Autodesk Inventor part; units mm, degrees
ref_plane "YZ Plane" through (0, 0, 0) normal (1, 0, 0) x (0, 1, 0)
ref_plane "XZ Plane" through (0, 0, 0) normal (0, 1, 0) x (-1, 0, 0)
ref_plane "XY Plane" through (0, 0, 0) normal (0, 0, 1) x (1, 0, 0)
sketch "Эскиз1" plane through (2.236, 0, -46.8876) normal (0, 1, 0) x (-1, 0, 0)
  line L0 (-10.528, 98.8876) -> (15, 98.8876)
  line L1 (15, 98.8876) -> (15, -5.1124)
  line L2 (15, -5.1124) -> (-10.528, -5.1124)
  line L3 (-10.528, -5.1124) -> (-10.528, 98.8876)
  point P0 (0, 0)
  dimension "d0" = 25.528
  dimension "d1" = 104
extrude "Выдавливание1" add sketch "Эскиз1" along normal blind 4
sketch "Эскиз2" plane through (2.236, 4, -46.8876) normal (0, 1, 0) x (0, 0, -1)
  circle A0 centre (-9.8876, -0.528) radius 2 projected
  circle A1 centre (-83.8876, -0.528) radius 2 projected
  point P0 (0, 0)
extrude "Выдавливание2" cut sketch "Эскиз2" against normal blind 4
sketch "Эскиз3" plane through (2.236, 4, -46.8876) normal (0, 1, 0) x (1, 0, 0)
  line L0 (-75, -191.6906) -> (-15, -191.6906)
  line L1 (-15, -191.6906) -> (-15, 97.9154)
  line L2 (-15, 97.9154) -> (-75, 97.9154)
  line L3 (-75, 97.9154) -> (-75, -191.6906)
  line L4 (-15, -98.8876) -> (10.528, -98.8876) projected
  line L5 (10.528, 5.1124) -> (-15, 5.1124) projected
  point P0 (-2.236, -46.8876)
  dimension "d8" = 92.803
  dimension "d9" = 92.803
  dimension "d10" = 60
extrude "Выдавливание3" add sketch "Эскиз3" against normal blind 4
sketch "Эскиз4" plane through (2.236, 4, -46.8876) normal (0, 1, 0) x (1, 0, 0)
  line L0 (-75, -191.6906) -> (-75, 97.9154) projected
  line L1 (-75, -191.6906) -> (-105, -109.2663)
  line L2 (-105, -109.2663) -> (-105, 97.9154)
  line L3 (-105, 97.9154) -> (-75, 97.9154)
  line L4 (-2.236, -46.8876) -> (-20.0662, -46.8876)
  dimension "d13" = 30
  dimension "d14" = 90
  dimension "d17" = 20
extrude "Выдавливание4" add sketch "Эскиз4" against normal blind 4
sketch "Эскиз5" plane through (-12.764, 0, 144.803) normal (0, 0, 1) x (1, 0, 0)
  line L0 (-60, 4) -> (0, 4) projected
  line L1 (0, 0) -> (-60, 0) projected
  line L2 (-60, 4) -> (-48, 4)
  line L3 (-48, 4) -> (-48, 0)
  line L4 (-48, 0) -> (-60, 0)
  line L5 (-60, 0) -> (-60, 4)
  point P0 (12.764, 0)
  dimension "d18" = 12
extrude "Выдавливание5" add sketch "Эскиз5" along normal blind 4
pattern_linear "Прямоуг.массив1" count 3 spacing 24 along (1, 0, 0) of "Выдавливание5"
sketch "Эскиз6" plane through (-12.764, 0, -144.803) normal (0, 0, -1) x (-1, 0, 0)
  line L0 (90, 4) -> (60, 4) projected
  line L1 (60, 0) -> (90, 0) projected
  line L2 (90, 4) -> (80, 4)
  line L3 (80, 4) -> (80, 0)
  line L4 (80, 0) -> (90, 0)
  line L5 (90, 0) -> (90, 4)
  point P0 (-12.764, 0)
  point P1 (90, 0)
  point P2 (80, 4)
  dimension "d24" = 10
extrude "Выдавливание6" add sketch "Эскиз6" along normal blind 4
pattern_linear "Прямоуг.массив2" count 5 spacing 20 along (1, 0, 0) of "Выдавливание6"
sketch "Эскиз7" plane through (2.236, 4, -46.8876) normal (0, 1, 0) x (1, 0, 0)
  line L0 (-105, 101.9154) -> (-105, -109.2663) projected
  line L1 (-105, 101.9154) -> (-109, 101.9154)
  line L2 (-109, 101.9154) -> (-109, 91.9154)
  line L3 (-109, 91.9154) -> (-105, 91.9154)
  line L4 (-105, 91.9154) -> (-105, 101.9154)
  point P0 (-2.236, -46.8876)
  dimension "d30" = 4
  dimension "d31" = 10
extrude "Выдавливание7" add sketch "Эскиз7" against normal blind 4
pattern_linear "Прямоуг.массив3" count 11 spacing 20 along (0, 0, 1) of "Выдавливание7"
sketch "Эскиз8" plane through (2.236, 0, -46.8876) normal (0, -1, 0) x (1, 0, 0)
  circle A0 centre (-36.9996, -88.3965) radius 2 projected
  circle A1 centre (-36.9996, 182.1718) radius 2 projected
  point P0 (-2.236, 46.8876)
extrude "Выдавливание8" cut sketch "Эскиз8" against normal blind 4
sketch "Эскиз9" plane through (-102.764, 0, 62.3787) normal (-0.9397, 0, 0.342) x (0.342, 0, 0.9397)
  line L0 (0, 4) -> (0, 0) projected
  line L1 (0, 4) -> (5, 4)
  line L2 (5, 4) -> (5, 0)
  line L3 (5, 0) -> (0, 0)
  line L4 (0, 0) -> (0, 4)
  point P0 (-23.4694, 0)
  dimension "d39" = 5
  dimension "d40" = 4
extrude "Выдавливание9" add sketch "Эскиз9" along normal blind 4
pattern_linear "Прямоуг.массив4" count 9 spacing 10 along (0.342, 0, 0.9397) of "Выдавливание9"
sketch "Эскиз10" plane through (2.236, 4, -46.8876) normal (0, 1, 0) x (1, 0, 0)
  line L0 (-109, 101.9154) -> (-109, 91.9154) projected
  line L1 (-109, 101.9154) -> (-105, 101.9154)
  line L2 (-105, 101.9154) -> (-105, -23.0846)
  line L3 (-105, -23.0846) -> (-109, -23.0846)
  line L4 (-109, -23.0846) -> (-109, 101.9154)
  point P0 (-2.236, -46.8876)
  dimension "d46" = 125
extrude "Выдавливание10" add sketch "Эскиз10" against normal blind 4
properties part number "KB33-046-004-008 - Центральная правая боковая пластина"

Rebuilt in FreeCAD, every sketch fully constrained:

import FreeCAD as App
import Part
import Sketcher
from FreeCAD import Vector
Q = App.Units.Quantity

doc = App.newDocument("Part")
params = doc.addObject("Spreadsheet::Sheet", "Params")
for row, (alias, value) in enumerate([
    ("sketch1_height", "104 mm"),
    ("pad1_length", "4 mm"),
    ("sketch2_diameter", "4 mm"),
    ("pocket1_length", "4 mm"),
    ("sketch3_width", "60 mm"),
    ("pad2_length", "4 mm"),
    ("sketch4_width", "30 mm"),
    ("pad3_length", "4 mm"),
    ("sketch5_width", "12 mm"),
    ("sketch5_height", "4 mm"),
    ("pad4_length", "4 mm"),
    ("linearpattern_pitch", "24 mm"),
    ("sketch6_width", "10 mm"),
    ("sketch6_height", "4 mm"),
    ("pad5_length", "4 mm"),
    ("linearpattern2_pitch", "20 mm"),
    ("sketch7_width", "4 mm"),
    ("sketch7_height", "10 mm"),
    ("pad6_length", "4 mm"),
    ("linearpattern3_pitch", "20 mm"),
    ("sketch8_diameter", "4 mm"),
    ("pocket2_length", "4 mm"),
    ("sketch9_width", "5 mm"),
    ("sketch9_height", "4 mm"),
    ("pad7_length", "4 mm"),
    ("linearpattern4_pitch", "10 mm"),
    ("sketch10_height", "125 mm"),
    ("sketch10_width", "4 mm"),
    ("pad8_length", "4 mm"),
], start=1):
    params.set(f"A{row}", alias)
    params.set(f"B{row}", "=" + value)
    params.setAlias(f"B{row}", alias)

body = doc.addObject("PartDesign::Body", "Body")

# Sketch on XZ plane
sketch1 = doc.addObject("Sketcher::SketchObject", "Sketch")
body.addObject(sketch1)
sketch1.AttachmentSupport = (doc.XZ_Plane, [""])
sketch1.MapMode = "FlatFace"
sketch1.addGeometry(Part.LineSegment(Vector(-12.764, 52, 0), Vector(12.764, 52, 0)), False)
sketch1.addGeometry(Part.LineSegment(Vector(12.764, 52, 0), Vector(12.764, -52, 0)), False)
sketch1.addGeometry(Part.LineSegment(Vector(12.764, -52, 0), Vector(-12.764, -52, 0)), False)
sketch1.addGeometry(Part.LineSegment(Vector(-12.764, -52, 0), Vector(-12.764, 52, 0)), False)
sketch1.addConstraint(Sketcher.Constraint("Coincident", 0, 2, 1, 1))
sketch1.addConstraint(Sketcher.Constraint("Coincident", 1, 2, 2, 1))
sketch1.addConstraint(Sketcher.Constraint("Coincident", 2, 2, 3, 1))
sketch1.addConstraint(Sketcher.Constraint("Coincident", 3, 2, 0, 1))
sketch1.addConstraint(Sketcher.Constraint("Horizontal", 0))
sketch1.addConstraint(Sketcher.Constraint("Vertical", 1))
sketch1.addConstraint(Sketcher.Constraint("Horizontal", 2))
sketch1.addConstraint(Sketcher.Constraint("Vertical", 3))
sketch1.addConstraint(Sketcher.Constraint("Symmetric", 0, 2, 2, 2, -1, 1))
sketch1.addConstraint(Sketcher.Constraint("DistanceY", 1, 2, 1, 1, Q("104 mm")))
sketch1.addConstraint(Sketcher.Constraint("DistanceX", 0, 1, 0, 2, Q("25.528 mm")))
sketch1.setExpression("Constraints[9]", "Params.sketch1_height")
pad1 = doc.addObject("PartDesign::Pad", "Pad")
body.addObject(pad1)
pad1.Profile = sketch1
pad1.setExpression("Length", "Params.pad1_length")
pad1.Reversed = True

# Sketch on XZ plane
sketch2 = doc.addObject("Sketcher::SketchObject", "Sketch001")
body.addObject(sketch2)
sketch2.AttachmentSupport = (doc.XZ_Plane, [""])
sketch2.MapMode = "FlatFace"
sketch2.AttachmentOffset = App.Placement(Vector(0, 0, -4), App.Rotation())
sketch2.addGeometry(Part.Circle(Vector(2.764, -37, 0), Vector(0, 0, 1), 2), False)
sketch2.addGeometry(Part.Circle(Vector(2.764, 37, 0), Vector(0, 0, 1), 2), False)
sketch2.addConstraint(Sketcher.Constraint("Equal", 0, 1))
sketch2.addConstraint(Sketcher.Constraint("Symmetric", 0, 3, 1, 3, -1))
sketch2.addConstraint(Sketcher.Constraint("Diameter", 0, Q("4 mm")))
sketch2.addConstraint(Sketcher.Constraint("DistanceY", 0, 3, -1, 1, Q("37 mm")))
sketch2.addConstraint(Sketcher.Constraint("DistanceX", -1, 1, 0, 3, Q("2.764 mm")))
sketch2.setExpression("Constraints[2]", "Params.sketch2_diameter")
pocket1 = doc.addObject("PartDesign::Pocket", "Pocket")
body.addObject(pocket1)
pocket1.Profile = sketch2
pocket1.setExpression("Length", "Params.pocket1_length")
pocket1.Reversed = True

# Sketch on XZ plane
sketch3 = doc.addObject("Sketcher::SketchObject", "Sketch002")
body.addObject(sketch3)
sketch3.AttachmentSupport = (doc.XZ_Plane, [""])
sketch3.MapMode = "FlatFace"
sketch3.AttachmentOffset = App.Placement(Vector(0, 0, -4), App.Rotation())
sketch3.addGeometry(Part.LineSegment(Vector(-72.764, -144.803, 0), Vector(-72.764, 144.803, 0)), False)
sketch3.addGeometry(Part.LineSegment(Vector(-72.764, 144.803, 0), Vector(-12.764, 144.803, 0)), False)
sketch3.addGeometry(Part.LineSegment(Vector(-12.764, 144.803, 0), Vector(-12.764, -144.803, 0)), False)
sketch3.addGeometry(Part.LineSegment(Vector(-12.764, -144.803, 0), Vector(-72.764, -144.803, 0)), False)
sketch3.addConstraint(Sketcher.Constraint("Coincident", 0, 2, 1, 1))
sketch3.addConstraint(Sketcher.Constraint("Coincident", 1, 2, 2, 1))
sketch3.addConstraint(Sketcher.Constraint("Coincident", 2, 2, 3, 1))
sketch3.addConstraint(Sketcher.Constraint("Coincident", 3, 2, 0, 1))
sketch3.addConstraint(Sketcher.Constraint("Vertical", 0))
sketch3.addConstraint(Sketcher.Constraint("Horizontal", 1))
sketch3.addConstraint(Sketcher.Constraint("Vertical", 2))
sketch3.addConstraint(Sketcher.Constraint("Horizontal", 3))
sketch3.addConstraint(Sketcher.Constraint("DistanceX", 1, 1, 1, 2, Q("60 mm")))
sketch3.addConstraint(Sketcher.Constraint("DistanceY", 0, 1, 0, 2, Q("289.606 mm")))
sketch3.addConstraint(Sketcher.Constraint("DistanceX", 0, 2, -1, 1, Q("72.764 mm")))
sketch3.addConstraint(Sketcher.Constraint("DistanceY", -1, 1, 0, 2, Q("144.803 mm")))
sketch3.setExpression("Constraints[8]", "Params.sketch3_width")
pad2 = doc.addObject("PartDesign::Pad", "Pad001")
body.addObject(pad2)
pad2.Profile = sketch3
pad2.setExpression("Length", "Params.pad2_length")

# Sketch on XZ plane
sketch4 = doc.addObject("Sketcher::SketchObject", "Sketch003")
body.addObject(sketch4)
sketch4.AttachmentSupport = (doc.XZ_Plane, [""])
sketch4.MapMode = "FlatFace"
sketch4.AttachmentOffset = App.Placement(Vector(0, 0, -4), App.Rotation())
sketch4.addGeometry(Part.LineSegment(Vector(-102.764, 62.3787, 0), Vector(-72.764, 144.803, 0)), False)
sketch4.addGeometry(Part.LineSegment(Vector(-72.764, 144.803, 0), Vector(-72.764, -144.803, 0)), False)
sketch4.addGeometry(Part.LineSegment(Vector(-72.764, -144.803, 0), Vector(-102.764, -144.803, 0)), False)
sketch4.addGeometry(Part.LineSegment(Vector(-102.764, -144.803, 0), Vector(-102.764, 62.3787, 0)), False)
sketch4.addConstraint(Sketcher.Constraint("Coincident", 0, 2, 1, 1))
sketch4.addConstraint(Sketcher.Constraint("Coincident", 1, 2, 2, 1))
sketch4.addConstraint(Sketcher.Constraint("Coincident", 2, 2, 3, 1))
sketch4.addConstraint(Sketcher.Constraint("Coincident", 3, 2, 0, 1))
sketch4.addConstraint(Sketcher.Constraint("Vertical", 1))
sketch4.addConstraint(Sketcher.Constraint("Horizontal", 2))
sketch4.addConstraint(Sketcher.Constraint("Vertical", 3))
sketch4.addConstraint(Sketcher.Constraint("DistanceX", 2, 2, 2, 1, Q("30 mm")))
sketch4.addConstraint(Sketcher.Constraint("Angle", 0, Q("70 deg")))
sketch4.addConstraint(Sketcher.Constraint("DistanceY", 1, 2, 1, 1, Q("289.606 mm")))
sketch4.addConstraint(Sketcher.Constraint("DistanceX", 0, 2, -1, 1, Q("72.764 mm")))
sketch4.addConstraint(Sketcher.Constraint("DistanceY", -1, 1, 0, 2, Q("144.803 mm")))
sketch4.setExpression("Constraints[7]", "Params.sketch4_width")
pad3 = doc.addObject("PartDesign::Pad", "Pad002")
body.addObject(pad3)
pad3.Profile = sketch4
pad3.setExpression("Length", "Params.pad3_length")

# Sketch on XY plane
sketch5 = doc.addObject("Sketcher::SketchObject", "Sketch004")
body.addObject(sketch5)
sketch5.AttachmentSupport = (doc.XY_Plane, [""])
sketch5.MapMode = "FlatFace"
sketch5.AttachmentOffset = App.Placement(Vector(0, 0, 144.803), App.Rotation())
sketch5.addGeometry(Part.LineSegment(Vector(-60.764, 4, 0), Vector(-72.764, 4, 0)), False)
sketch5.addGeometry(Part.LineSegment(Vector(-72.764, 4, 0), Vector(-72.764, 0, 0)), False)
sketch5.addGeometry(Part.LineSegment(Vector(-72.764, 0, 0), Vector(-60.764, 0, 0)), False)
sketch5.addGeometry(Part.LineSegment(Vector(-60.764, 0, 0), Vector(-60.764, 4, 0)), False)
sketch5.addConstraint(Sketcher.Constraint("Coincident", 0, 2, 1, 1))
sketch5.addConstraint(Sketcher.Constraint("Coincident", 1, 2, 2, 1))
sketch5.addConstraint(Sketcher.Constraint("Coincident", 2, 2, 3, 1))
sketch5.addConstraint(Sketcher.Constraint("Coincident", 3, 2, 0, 1))
sketch5.addConstraint(Sketcher.Constraint("Horizontal", 0))
sketch5.addConstraint(Sketcher.Constraint("Vertical", 1))
sketch5.addConstraint(Sketcher.Constraint("Horizontal", 2))
sketch5.addConstraint(Sketcher.Constraint("Vertical", 3))
sketch5.addConstraint(Sketcher.Constraint("PointOnObject", 1, 2, -1))
sketch5.addConstraint(Sketcher.Constraint("DistanceX", 0, 2, 0, 1, Q("12 mm")))
sketch5.addConstraint(Sketcher.Constraint("DistanceY", 1, 2, 1, 1, Q("4 mm")))
sketch5.addConstraint(Sketcher.Constraint("DistanceX", 0, 2, -1, 1, Q("72.764 mm")))
sketch5.setExpression("Constraints[9]", "Params.sketch5_width")
sketch5.setExpression("Constraints[10]", "Params.sketch5_height")
pad4 = doc.addObject("PartDesign::Pad", "Pad003")
body.addObject(pad4)
pad4.Profile = sketch5
pad4.setExpression("Length", "Params.pad4_length")
doc.recompute()

linearpattern = doc.addObject("PartDesign::LinearPattern", "LinearPattern")
body.addObject(linearpattern)
linearpattern.Originals = [pad4]
linearpattern.Direction = (doc.X_Axis, [""])
linearpattern.Mode = "offset"
linearpattern.setExpression("Offset", "Params.linearpattern_pitch")
linearpattern.Occurrences = 3
body.Tip = linearpattern

# Sketch on XY plane
sketch6 = doc.addObject("Sketcher::SketchObject", "Sketch005")
body.addObject(sketch6)
sketch6.AttachmentSupport = (doc.XY_Plane, [""])
sketch6.MapMode = "FlatFace"
sketch6.AttachmentOffset = App.Placement(Vector(0, 0, -144.803), App.Rotation())
sketch6.addGeometry(Part.LineSegment(Vector(-102.764, 0, 0), Vector(-102.764, 4, 0)), False)
sketch6.addGeometry(Part.LineSegment(Vector(-102.764, 4, 0), Vector(-92.764, 4, 0)), False)
sketch6.addGeometry(Part.LineSegment(Vector(-92.764, 4, 0), Vector(-92.764, 0, 0)), False)
sketch6.addGeometry(Part.LineSegment(Vector(-92.764, 0, 0), Vector(-102.764, 0, 0)), False)
sketch6.addConstraint(Sketcher.Constraint("Coincident", 0, 2, 1, 1))
sketch6.addConstraint(Sketcher.Constraint("Coincident", 1, 2, 2, 1))
sketch6.addConstraint(Sketcher.Constraint("Coincident", 2, 2, 3, 1))
sketch6.addConstraint(Sketcher.Constraint("Coincident", 3, 2, 0, 1))
sketch6.addConstraint(Sketcher.Constraint("Vertical", 0))
sketch6.addConstraint(Sketcher.Constraint("Horizontal", 1))
sketch6.addConstraint(Sketcher.Constraint("Vertical", 2))
sketch6.addConstraint(Sketcher.Constraint("Horizontal", 3))
sketch6.addConstraint(Sketcher.Constraint("PointOnObject", 2, 2, -1))
sketch6.addConstraint(Sketcher.Constraint("DistanceX", 1, 1, 1, 2, Q("10 mm")))
sketch6.addConstraint(Sketcher.Constraint("DistanceY", 0, 1, 0, 2, Q("4 mm")))
sketch6.addConstraint(Sketcher.Constraint("DistanceX", 0, 2, -1, 1, Q("102.764 mm")))
sketch6.setExpression("Constraints[9]", "Params.sketch6_width")
sketch6.setExpression("Constraints[10]", "Params.sketch6_height")
pad5 = doc.addObject("PartDesign::Pad", "Pad004")
body.addObject(pad5)
pad5.Profile = sketch6
pad5.setExpression("Length", "Params.pad5_length")
pad5.Reversed = True
doc.recompute()

linearpattern2 = doc.addObject("PartDesign::LinearPattern", "LinearPattern001")
body.addObject(linearpattern2)
linearpattern2.Originals = [pad5]
linearpattern2.Direction = (doc.X_Axis, [""])
linearpattern2.Mode = "offset"
linearpattern2.setExpression("Offset", "Params.linearpattern2_pitch")
linearpattern2.Occurrences = 5
body.Tip = linearpattern2

# Sketch on XZ plane
sketch7 = doc.addObject("Sketcher::SketchObject", "Sketch006")
body.addObject(sketch7)
sketch7.AttachmentSupport = (doc.XZ_Plane, [""])
sketch7.MapMode = "FlatFace"
sketch7.AttachmentOffset = App.Placement(Vector(0, 0, -4), App.Rotation())
sketch7.addGeometry(Part.LineSegment(Vector(-102.764, -138.803, 0), Vector(-102.764, -148.803, 0)), False)
sketch7.addGeometry(Part.LineSegment(Vector(-102.764, -148.803, 0), Vector(-106.764, -148.803, 0)), False)
sketch7.addGeometry(Part.LineSegment(Vector(-106.764, -148.803, 0), Vector(-106.764, -138.803, 0)), False)
sketch7.addGeometry(Part.LineSegment(Vector(-106.764, -138.803, 0), Vector(-102.764, -138.803, 0)), False)
sketch7.addConstraint(Sketcher.Constraint("Coincident", 0, 2, 1, 1))
sketch7.addConstraint(Sketcher.Constraint("Coincident", 1, 2, 2, 1))
sketch7.addConstraint(Sketcher.Constraint("Coincident", 2, 2, 3, 1))
sketch7.addConstraint(Sketcher.Constraint("Coincident", 3, 2, 0, 1))
sketch7.addConstraint(Sketcher.Constraint("Vertical", 0))
sketch7.addConstraint(Sketcher.Constraint("Horizontal", 1))
sketch7.addConstraint(Sketcher.Constraint("Vertical", 2))
sketch7.addConstraint(Sketcher.Constraint("Horizontal", 3))
sketch7.addConstraint(Sketcher.Constraint("DistanceX", 1, 2, 1, 1, Q("4 mm")))
sketch7.addConstraint(Sketcher.Constraint("DistanceY", 0, 2, 0, 1, Q("10 mm")))
sketch7.addConstraint(Sketcher.Constraint("DistanceX", 0, 2, -1, 1, Q("102.764 mm")))
sketch7.addConstraint(Sketcher.Constraint("DistanceY", 0, 2, -1, 1, Q("148.803 mm")))
sketch7.setExpression("Constraints[8]", "Params.sketch7_width")
sketch7.setExpression("Constraints[9]", "Params.sketch7_height")
pad6 = doc.addObject("PartDesign::Pad", "Pad005")
body.addObject(pad6)
pad6.Profile = sketch7
pad6.setExpression("Length", "Params.pad6_length")
doc.recompute()

linearpattern3 = doc.addObject("PartDesign::LinearPattern", "LinearPattern002")
body.addObject(linearpattern3)
linearpattern3.Originals = [pad6]
linearpattern3.Direction = (doc.Z_Axis, [""])
linearpattern3.Mode = "offset"
linearpattern3.setExpression("Offset", "Params.linearpattern3_pitch")
linearpattern3.Occurrences = 11
body.Tip = linearpattern3

# Sketch on XZ plane
sketch8 = doc.addObject("Sketcher::SketchObject", "Sketch007")
body.addObject(sketch8)
sketch8.AttachmentSupport = (doc.XZ_Plane, [""])
sketch8.MapMode = "FlatFace"
sketch8.addGeometry(Part.Circle(Vector(-34.7636, -135.2841, 0), Vector(0, 0, 1), 2), False)
sketch8.addGeometry(Part.Circle(Vector(-34.7636, 135.2842, 0), Vector(0, 0, 1), 2), False)
sketch8.addConstraint(Sketcher.Constraint("Equal", 0, 1))
sketch8.addConstraint(Sketcher.Constraint("Symmetric", 0, 3, 1, 3, -1))
sketch8.addConstraint(Sketcher.Constraint("Diameter", 0, Q("4 mm")))
sketch8.addConstraint(Sketcher.Constraint("DistanceY", 0, 3, -1, 1, Q("135.284 mm")))
sketch8.addConstraint(Sketcher.Constraint("DistanceX", 0, 3, -1, 1, Q("34.7636 mm")))
sketch8.setExpression("Constraints[2]", "Params.sketch8_diameter")
pocket2 = doc.addObject("PartDesign::Pocket", "Pocket001")
body.addObject(pocket2)
pocket2.Profile = sketch8
pocket2.setExpression("Length", "Params.pocket2_length")

# Sketch on an angled plane
sketch9 = doc.addObject("Sketcher::SketchObject", "Sketch008")
body.addObject(sketch9)
sketch9.Placement = App.Placement(Vector(-102.764, 0, 62.3787), App.Rotation(Vector(0.342020143, 0, 0.939692621), Vector(0, 1, 0), Vector(-0.939692621, 0, 0.342020143), "ZXY"))
sketch9.addGeometry(Part.LineSegment(Vector(5, 4, 0), Vector(0, 4, 0)), False)
sketch9.addGeometry(Part.LineSegment(Vector(0, 4, 0), Vector(0, 0, 0)), False)
sketch9.addGeometry(Part.LineSegment(Vector(0, 0, 0), Vector(5, 0, 0)), False)
sketch9.addGeometry(Part.LineSegment(Vector(5, 0, 0), Vector(5, 4, 0)), False)
sketch9.addConstraint(Sketcher.Constraint("Coincident", 0, 2, 1, 1))
sketch9.addConstraint(Sketcher.Constraint("Coincident", 1, 2, 2, 1))
sketch9.addConstraint(Sketcher.Constraint("Coincident", 2, 2, 3, 1))
sketch9.addConstraint(Sketcher.Constraint("Coincident", 3, 2, 0, 1))
sketch9.addConstraint(Sketcher.Constraint("Horizontal", 0))
sketch9.addConstraint(Sketcher.Constraint("Vertical", 1))
sketch9.addConstraint(Sketcher.Constraint("Horizontal", 2))
sketch9.addConstraint(Sketcher.Constraint("Vertical", 3))
sketch9.addConstraint(Sketcher.Constraint("Coincident", 1, 2, -1, 1))
sketch9.addConstraint(Sketcher.Constraint("DistanceX", 0, 2, 0, 1, Q("5 mm")))
sketch9.addConstraint(Sketcher.Constraint("DistanceY", 1, 2, 1, 1, Q("4 mm")))
sketch9.setExpression("Constraints[9]", "Params.sketch9_width")
sketch9.setExpression("Constraints[10]", "Params.sketch9_height")
pad7 = doc.addObject("PartDesign::Pad", "Pad006")
body.addObject(pad7)
pad7.Profile = sketch9
pad7.setExpression("Length", "Params.pad7_length")
doc.recompute()

datumline = doc.addObject("PartDesign::Line", "DatumLine")
body.addObject(datumline)
datumline.Placement = App.Placement(Vector(0, 0, 0), App.Rotation(Vector(0, 0, 1), Vector(0.342020143, 0, 0.939692621)))
linearpattern4 = doc.addObject("PartDesign::LinearPattern", "LinearPattern003")
body.addObject(linearpattern4)
linearpattern4.Originals = [pad7]
linearpattern4.Direction = (datumline, [""])
linearpattern4.Mode = "offset"
linearpattern4.setExpression("Offset", "Params.linearpattern4_pitch")
linearpattern4.Occurrences = 9
body.Tip = linearpattern4

# Sketch on XZ plane
sketch10 = doc.addObject("Sketcher::SketchObject", "Sketch009")
body.addObject(sketch10)
sketch10.AttachmentSupport = (doc.XZ_Plane, [""])
sketch10.MapMode = "FlatFace"
sketch10.AttachmentOffset = App.Placement(Vector(0, 0, -4), App.Rotation())
sketch10.addGeometry(Part.LineSegment(Vector(-102.764, -148.803, 0), Vector(-106.764, -148.803, 0)), False)
sketch10.addGeometry(Part.LineSegment(Vector(-106.764, -148.803, 0), Vector(-106.764, -23.803, 0)), False)
sketch10.addGeometry(Part.LineSegment(Vector(-106.764, -23.803, 0), Vector(-102.764, -23.803, 0)), False)
sketch10.addGeometry(Part.LineSegment(Vector(-102.764, -23.803, 0), Vector(-102.764, -148.803, 0)), False)
sketch10.addConstraint(Sketcher.Constraint("Coincident", 0, 2, 1, 1))
sketch10.addConstraint(Sketcher.Constraint("Coincident", 1, 2, 2, 1))
sketch10.addConstraint(Sketcher.Constraint("Coincident", 2, 2, 3, 1))
sketch10.addConstraint(Sketcher.Constraint("Coincident", 3, 2, 0, 1))
sketch10.addConstraint(Sketcher.Constraint("Horizontal", 0))
sketch10.addConstraint(Sketcher.Constraint("Vertical", 1))
sketch10.addConstraint(Sketcher.Constraint("Horizontal", 2))
sketch10.addConstraint(Sketcher.Constraint("Vertical", 3))
sketch10.addConstraint(Sketcher.Constraint("DistanceY", 1, 1, 1, 2, Q("125 mm")))
sketch10.addConstraint(Sketcher.Constraint("DistanceX", 0, 2, 0, 1, Q("4 mm")))
sketch10.addConstraint(Sketcher.Constraint("DistanceX", 0, 2, -1, 1, Q("106.764 mm")))
sketch10.addConstraint(Sketcher.Constraint("DistanceY", 0, 2, -1, 1, Q("148.803 mm")))
sketch10.setExpression("Constraints[8]", "Params.sketch10_height")
sketch10.setExpression("Constraints[9]", "Params.sketch10_width")
pad8 = doc.addObject("PartDesign::Pad", "Pad007")
body.addObject(pad8)
pad8.Profile = sketch10
pad8.setExpression("Length", "Params.pad8_length")

doc.recompute()
